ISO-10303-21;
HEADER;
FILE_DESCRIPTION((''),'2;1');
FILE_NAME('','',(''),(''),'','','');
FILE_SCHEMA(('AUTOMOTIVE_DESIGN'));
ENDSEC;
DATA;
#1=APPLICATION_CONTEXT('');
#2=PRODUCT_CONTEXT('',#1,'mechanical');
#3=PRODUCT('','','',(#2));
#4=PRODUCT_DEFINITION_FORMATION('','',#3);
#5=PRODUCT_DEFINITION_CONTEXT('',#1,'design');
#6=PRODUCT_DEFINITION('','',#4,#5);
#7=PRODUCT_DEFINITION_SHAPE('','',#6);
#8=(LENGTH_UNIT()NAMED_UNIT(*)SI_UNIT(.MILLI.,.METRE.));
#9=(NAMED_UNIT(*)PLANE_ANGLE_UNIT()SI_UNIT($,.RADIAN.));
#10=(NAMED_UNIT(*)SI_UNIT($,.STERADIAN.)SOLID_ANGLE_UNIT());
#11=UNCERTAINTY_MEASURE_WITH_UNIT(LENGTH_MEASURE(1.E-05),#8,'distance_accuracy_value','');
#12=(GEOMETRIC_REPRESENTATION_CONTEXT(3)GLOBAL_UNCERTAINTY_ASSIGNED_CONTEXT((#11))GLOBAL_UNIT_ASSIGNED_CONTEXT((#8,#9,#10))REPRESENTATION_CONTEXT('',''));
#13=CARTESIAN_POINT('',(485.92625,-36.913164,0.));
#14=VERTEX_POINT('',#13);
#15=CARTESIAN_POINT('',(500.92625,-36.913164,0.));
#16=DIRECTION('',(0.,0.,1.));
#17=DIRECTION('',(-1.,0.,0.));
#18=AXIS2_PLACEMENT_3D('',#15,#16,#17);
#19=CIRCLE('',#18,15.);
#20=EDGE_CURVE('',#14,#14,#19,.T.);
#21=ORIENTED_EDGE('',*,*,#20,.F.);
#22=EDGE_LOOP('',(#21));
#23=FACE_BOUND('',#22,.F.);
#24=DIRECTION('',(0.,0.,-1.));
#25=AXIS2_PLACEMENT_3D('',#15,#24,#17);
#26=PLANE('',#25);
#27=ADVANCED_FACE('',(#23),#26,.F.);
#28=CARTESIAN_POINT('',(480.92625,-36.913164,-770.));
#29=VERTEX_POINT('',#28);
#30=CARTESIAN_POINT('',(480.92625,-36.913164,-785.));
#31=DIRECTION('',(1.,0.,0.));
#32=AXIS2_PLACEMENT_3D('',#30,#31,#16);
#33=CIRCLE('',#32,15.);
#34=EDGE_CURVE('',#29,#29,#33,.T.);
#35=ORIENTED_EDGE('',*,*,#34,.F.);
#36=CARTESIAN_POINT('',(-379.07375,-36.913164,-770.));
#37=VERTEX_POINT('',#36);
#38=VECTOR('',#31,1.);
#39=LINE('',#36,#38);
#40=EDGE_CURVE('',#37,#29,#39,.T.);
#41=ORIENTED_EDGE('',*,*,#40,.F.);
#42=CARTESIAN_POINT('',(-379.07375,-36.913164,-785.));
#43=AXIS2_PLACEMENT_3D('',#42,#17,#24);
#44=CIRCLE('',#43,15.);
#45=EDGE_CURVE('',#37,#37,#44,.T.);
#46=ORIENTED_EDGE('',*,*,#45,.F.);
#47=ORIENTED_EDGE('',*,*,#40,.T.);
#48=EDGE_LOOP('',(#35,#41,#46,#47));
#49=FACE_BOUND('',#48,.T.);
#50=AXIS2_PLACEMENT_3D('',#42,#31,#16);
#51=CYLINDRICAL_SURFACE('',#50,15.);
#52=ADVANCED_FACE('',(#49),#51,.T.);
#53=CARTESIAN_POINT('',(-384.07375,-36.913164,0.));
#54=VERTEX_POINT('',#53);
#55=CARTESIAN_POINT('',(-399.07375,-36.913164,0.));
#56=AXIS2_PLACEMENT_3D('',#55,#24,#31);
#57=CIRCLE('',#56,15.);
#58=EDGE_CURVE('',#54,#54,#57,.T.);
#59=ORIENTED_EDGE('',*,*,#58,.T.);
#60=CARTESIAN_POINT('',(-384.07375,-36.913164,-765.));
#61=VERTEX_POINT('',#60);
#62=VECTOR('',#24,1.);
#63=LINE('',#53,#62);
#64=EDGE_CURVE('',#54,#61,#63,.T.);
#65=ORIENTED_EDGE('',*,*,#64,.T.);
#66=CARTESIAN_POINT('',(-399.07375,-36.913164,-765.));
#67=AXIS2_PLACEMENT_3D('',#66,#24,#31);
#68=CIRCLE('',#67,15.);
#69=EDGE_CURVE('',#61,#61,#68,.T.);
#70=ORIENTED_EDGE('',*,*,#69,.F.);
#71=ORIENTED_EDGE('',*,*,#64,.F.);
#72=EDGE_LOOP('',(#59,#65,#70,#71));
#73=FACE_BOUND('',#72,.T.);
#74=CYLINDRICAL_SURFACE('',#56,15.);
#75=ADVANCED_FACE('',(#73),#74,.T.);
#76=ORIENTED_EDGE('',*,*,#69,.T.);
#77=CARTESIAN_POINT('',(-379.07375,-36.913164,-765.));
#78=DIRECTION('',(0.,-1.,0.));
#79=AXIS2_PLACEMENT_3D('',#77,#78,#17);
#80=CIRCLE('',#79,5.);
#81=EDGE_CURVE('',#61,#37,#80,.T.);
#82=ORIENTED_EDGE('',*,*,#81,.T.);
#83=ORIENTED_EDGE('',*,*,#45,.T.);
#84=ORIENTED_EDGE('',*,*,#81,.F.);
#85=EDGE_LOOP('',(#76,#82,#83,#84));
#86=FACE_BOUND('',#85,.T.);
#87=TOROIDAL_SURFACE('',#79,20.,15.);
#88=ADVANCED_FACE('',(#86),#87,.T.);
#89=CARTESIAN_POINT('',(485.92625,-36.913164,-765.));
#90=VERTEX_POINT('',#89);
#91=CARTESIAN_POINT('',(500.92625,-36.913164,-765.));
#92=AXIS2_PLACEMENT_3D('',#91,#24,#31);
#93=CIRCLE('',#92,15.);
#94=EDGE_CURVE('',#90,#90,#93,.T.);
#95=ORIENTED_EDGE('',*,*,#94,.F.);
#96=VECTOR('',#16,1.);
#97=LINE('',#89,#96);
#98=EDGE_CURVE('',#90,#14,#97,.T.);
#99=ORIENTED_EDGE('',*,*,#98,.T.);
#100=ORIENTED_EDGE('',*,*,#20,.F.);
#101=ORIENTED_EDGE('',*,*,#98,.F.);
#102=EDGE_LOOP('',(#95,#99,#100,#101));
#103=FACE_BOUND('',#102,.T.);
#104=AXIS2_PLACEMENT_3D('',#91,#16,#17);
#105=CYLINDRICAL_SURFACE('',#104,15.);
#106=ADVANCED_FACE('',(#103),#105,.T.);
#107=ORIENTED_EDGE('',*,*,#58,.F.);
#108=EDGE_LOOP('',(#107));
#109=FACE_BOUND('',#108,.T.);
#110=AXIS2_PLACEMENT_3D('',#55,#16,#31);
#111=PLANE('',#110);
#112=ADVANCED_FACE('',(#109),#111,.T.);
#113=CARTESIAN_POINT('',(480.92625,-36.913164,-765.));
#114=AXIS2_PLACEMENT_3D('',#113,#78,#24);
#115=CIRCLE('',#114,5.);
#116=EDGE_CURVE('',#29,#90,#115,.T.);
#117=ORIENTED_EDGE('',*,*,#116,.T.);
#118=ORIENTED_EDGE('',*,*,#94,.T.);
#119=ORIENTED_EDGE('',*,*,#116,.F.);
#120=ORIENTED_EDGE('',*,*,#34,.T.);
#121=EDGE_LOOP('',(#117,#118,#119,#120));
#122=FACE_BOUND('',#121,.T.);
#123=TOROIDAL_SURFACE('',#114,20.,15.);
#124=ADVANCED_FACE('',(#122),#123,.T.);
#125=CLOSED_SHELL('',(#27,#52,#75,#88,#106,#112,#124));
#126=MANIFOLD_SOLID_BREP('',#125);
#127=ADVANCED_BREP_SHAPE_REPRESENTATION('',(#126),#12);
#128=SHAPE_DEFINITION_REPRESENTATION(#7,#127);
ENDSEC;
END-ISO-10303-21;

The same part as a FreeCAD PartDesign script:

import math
import FreeCAD as App
import Part
import Sketcher
from FreeCAD import Vector

doc = App.newDocument("Part")
params = doc.addObject("Spreadsheet::Sheet", "Params")
for row, (alias, value) in enumerate([
    ("sketch1_diameter", "30 mm"),
    ("sketch2_radius", "20 mm"),
    ("sketch2_width", "860 mm"),
    ("sketch2_height", "765 mm"),
], start=1):
    params.set(f"A{row}", alias)
    params.set(f"B{row}", "=" + value)
    params.setAlias(f"B{row}", alias)

body = doc.addObject("PartDesign::Body", "Body")

sketch1 = doc.addObject("Sketcher::SketchObject", "Sketch")
body.addObject(sketch1)
sketch1.AttachmentSupport = (doc.XY_Plane, [""])
sketch1.MapMode = "FlatFace"
sketch1.addGeometry(Part.Circle(Vector(-399.07375, -36.913164, 0), Vector(0, 0, 1), 15), False)
sketch1.addConstraint(Sketcher.Constraint("Diameter", 0, 30.0))
sketch1.addConstraint(Sketcher.Constraint("DistanceX", 0, 3, -1, 1, 399.07375))
sketch1.addConstraint(Sketcher.Constraint("DistanceY", 0, 3, -1, 1, 36.913164))
sketch1.setExpression("Constraints[0]", "Params.sketch1_diameter")

sketch2 = doc.addObject("Sketcher::SketchObject", "Sketch001")
body.addObject(sketch2)
sketch2.AttachmentSupport = (doc.XZ_Plane, [""])
sketch2.MapMode = "FlatFace"
sketch2.AttachmentOffset = App.Placement(Vector(0, 0, 36.913164), App.Rotation())
sketch2.addGeometry(Part.LineSegment(Vector(-399.07375, 0, 0), Vector(-399.07375, -765, 0)), False)
sketch2.addGeometry(Part.ArcOfCircle(Part.Circle(Vector(-379.07375, -765, 0), Vector(0, 0, 1), 20), math.radians(180), math.radians(270)), False)
sketch2.addGeometry(Part.LineSegment(Vector(-379.07375, -785, 0), Vector(480.92625, -785, 0)), False)
sketch2.addGeometry(Part.ArcOfCircle(Part.Circle(Vector(480.92625, -765, 0), Vector(0, 0, 1), 20), math.radians(-90), math.radians(0)), False)
sketch2.addGeometry(Part.LineSegment(Vector(500.92625, -765, 0), Vector(500.92625, 0, 0)), False)
sketch2.addConstraint(Sketcher.Constraint("Tangent", 0, 2, 1, 1))
sketch2.addConstraint(Sketcher.Constraint("Tangent", 1, 2, 2, 1))
sketch2.addConstraint(Sketcher.Constraint("Tangent", 2, 2, 3, 1))
sketch2.addConstraint(Sketcher.Constraint("Tangent", 3, 2, 4, 1))
sketch2.addConstraint(Sketcher.Constraint("Vertical", 0))
sketch2.addConstraint(Sketcher.Constraint("Horizontal", 2))
sketch2.addConstraint(Sketcher.Constraint("Vertical", 4))
sketch2.addConstraint(Sketcher.Constraint("Equal", 1, 3))
sketch2.addConstraint(Sketcher.Constraint("PointOnObject", 0, 1, -1))
sketch2.addConstraint(Sketcher.Constraint("PointOnObject", 4, 2, -1))
sketch2.addConstraint(Sketcher.Constraint("Radius", 1, 20.0))
sketch2.addConstraint(Sketcher.Constraint("DistanceX", 2, 1, 2, 2, 860.0))
sketch2.addConstraint(Sketcher.Constraint("DistanceY", 0, 2, 0, 1, 765.0))
sketch2.addConstraint(Sketcher.Constraint("DistanceX", 1, 3, -1, 1, 379.07375))
sketch2.setExpression("Constraints[10]", "Params.sketch2_radius")
sketch2.setExpression("Constraints[11]", "Params.sketch2_width")
sketch2.setExpression("Constraints[12]", "Params.sketch2_height")
doc.recompute()

additivepipe = doc.addObject("PartDesign::AdditivePipe", "AdditivePipe")
body.addObject(additivepipe)
additivepipe.Profile = sketch1
additivepipe.Spine = (sketch2, ["Edge1", "Edge2", "Edge3", "Edge4", "Edge5"])

doc.recompute()
